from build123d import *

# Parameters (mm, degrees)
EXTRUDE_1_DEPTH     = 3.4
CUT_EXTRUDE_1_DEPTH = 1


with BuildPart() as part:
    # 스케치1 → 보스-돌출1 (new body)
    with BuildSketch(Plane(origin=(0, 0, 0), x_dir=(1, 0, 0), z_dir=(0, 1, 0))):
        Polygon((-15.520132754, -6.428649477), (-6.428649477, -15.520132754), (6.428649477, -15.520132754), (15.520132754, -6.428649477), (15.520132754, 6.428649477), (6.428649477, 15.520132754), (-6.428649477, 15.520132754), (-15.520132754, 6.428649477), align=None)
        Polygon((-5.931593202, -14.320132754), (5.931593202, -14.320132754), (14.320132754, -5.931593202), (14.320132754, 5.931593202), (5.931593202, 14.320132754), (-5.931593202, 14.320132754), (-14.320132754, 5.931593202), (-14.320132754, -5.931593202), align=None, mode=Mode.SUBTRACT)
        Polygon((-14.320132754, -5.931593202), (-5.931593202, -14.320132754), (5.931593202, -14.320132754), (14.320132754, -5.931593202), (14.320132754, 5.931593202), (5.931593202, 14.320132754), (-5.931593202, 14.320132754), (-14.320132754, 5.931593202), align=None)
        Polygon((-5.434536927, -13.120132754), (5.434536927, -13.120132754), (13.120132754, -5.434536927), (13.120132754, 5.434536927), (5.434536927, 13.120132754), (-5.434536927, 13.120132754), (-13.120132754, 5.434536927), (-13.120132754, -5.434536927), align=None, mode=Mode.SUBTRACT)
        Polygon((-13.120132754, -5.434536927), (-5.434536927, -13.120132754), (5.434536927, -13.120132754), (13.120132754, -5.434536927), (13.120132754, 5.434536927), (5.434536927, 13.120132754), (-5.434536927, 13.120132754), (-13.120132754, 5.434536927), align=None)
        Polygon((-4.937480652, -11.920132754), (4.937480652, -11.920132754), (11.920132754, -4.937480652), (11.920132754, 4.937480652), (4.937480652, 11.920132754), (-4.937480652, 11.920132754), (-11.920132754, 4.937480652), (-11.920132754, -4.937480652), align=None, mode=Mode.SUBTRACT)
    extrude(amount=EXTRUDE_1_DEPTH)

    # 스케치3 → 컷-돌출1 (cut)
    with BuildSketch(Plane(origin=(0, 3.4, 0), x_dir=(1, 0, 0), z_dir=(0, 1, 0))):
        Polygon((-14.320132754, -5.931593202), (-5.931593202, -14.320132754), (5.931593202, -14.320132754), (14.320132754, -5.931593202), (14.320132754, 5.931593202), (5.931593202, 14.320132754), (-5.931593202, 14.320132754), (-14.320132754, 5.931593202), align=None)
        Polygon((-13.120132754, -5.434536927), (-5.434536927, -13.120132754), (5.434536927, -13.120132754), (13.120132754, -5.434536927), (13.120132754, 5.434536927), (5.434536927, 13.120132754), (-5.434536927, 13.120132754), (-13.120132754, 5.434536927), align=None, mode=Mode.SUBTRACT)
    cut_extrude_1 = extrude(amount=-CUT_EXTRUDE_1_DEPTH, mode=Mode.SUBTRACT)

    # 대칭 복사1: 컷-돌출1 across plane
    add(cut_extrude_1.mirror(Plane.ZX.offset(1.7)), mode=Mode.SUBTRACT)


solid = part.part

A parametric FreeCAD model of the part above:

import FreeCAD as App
import Part
import Sketcher


def add_polygon(sketch, points):
    """Adds a closed chain of lines whose ends are joined by coincident constraints."""
    first, n = sketch.GeometryCount, len(points)
    for a, b in zip(points, points[1:] + points[:1]):
        sketch.addGeometry(Part.LineSegment(App.Vector(*a, 0), App.Vector(*b, 0)), False)
    for i in range(n):
        sketch.addConstraint(Sketcher.Constraint("Coincident", first + i, 2, first + (i + 1) % n, 1))

doc = App.newDocument("Part")
body = doc.addObject("PartDesign::Body", "Body")

sketch1 = body.newObject("Sketcher::SketchObject", "Sketch")
sketch1.AttachmentSupport = (doc.getObject("XZ_Plane"), [""])
sketch1.MapMode = "FlatFace"
add_polygon(sketch1, [(-16, 6), (-6, 16), (6, 16), (16, 6), (16, -6), (6, -16), (-6, -16), (-16, -6)])
add_polygon(sketch1, [(5, 12), (-5, 12), (-12, 5), (-12, -5), (-5, -12), (5, -12), (12, -5), (12, 5)])
sketch1.addConstraint(Sketcher.Constraint("Horizontal", 1))
sketch1.addConstraint(Sketcher.Constraint("Vertical", 3))
sketch1.addConstraint(Sketcher.Constraint("Horizontal", 5))
sketch1.addConstraint(Sketcher.Constraint("Vertical", 7))
sketch1.addConstraint(Sketcher.Constraint("Horizontal", 8))
sketch1.addConstraint(Sketcher.Constraint("Vertical", 10))
sketch1.addConstraint(Sketcher.Constraint("Horizontal", 12))
sketch1.addConstraint(Sketcher.Constraint("Vertical", 14))
sketch1.addConstraint(Sketcher.Constraint("Symmetric", 0, 2, 4, 2, -1, 1))
sketch1.addConstraint(Sketcher.Constraint("Symmetric", 2, 2, 6, 2, -1, 1))
sketch1.addConstraint(Sketcher.Constraint("Symmetric", 8, 2, 12, 2, -1, 1))
sketch1.addConstraint(Sketcher.Constraint("Symmetric", 9, 2, 13, 2, -1, 1))
sketch1.addConstraint(Sketcher.Constraint("Perpendicular", 0, 2))
sketch1.addConstraint(Sketcher.Constraint("Perpendicular", 2, 4))
sketch1.addConstraint(Sketcher.Constraint("Perpendicular", 4, 6))
sketch1.addConstraint(Sketcher.Constraint("Perpendicular", 6, 9))
sketch1.addConstraint(Sketcher.Constraint("Perpendicular", 9, 11))
sketch1.addConstraint(Sketcher.Constraint("Perpendicular", 13, 15))
sketch1.addConstraint(Sketcher.Constraint("Horizontal", 3, 2, 6, 2))
sketch1.addConstraint(Sketcher.Constraint("Horizontal", 10, 2, 13, 2))
sketch1.addConstraint(Sketcher.Constraint("Horizontal", 9, 2, 14, 2))
sketch1.addConstraint(Sketcher.Constraint("Vertical", 1, 2, 4, 2))
sketch1.addConstraint(Sketcher.Constraint("Equal", 5, 3))
sketch1.addConstraint(Sketcher.Constraint("Equal", 12, 10))
sketch1.addConstraint(Sketcher.Constraint("DistanceY", 8, 2, 0, 2, 3.6))
sketch1.addConstraint(Sketcher.Constraint("DistanceX", 1, 1, 1, 2, 12.857299))
sketch1.addConstraint(Sketcher.Constraint("Distance", 0, 12.857299))
sketch1.addConstraint(Sketcher.Constraint("DistanceX", 8, 2, 8, 1, 9.874961))
pad1 = body.newObject("PartDesign::Pad", "Pad")
pad1.Profile = sketch1
pad1.Length = 3.4
pad1.Reversed = True

sketch2 = body.newObject("Sketcher::SketchObject", "Sketch001")
sketch2.AttachmentSupport = (doc.getObject("XZ_Plane"), [""])
sketch2.MapMode = "FlatFace"
sketch2.AttachmentOffset = App.Placement(App.Vector(0, 0, -3.4), App.Rotation())
add_polygon(sketch2, [(-14, 6), (-6, 14), (6, 14), (14, 6), (14, -6), (6, -14), (-6, -14), (-14, -6)])
add_polygon(sketch2, [(-5, 13), (-13, 5), (-13, -5), (-5, -13), (5, -13), (13, -5), (13, 5), (5, 13)])
sketch2.addConstraint(Sketcher.Constraint("Horizontal", 1))
sketch2.addConstraint(Sketcher.Constraint("Vertical", 3))
sketch2.addConstraint(Sketcher.Constraint("Horizontal", 5))
sketch2.addConstraint(Sketcher.Constraint("Vertical", 7))
sketch2.addConstraint(Sketcher.Constraint("Vertical", 9))
sketch2.addConstraint(Sketcher.Constraint("Horizontal", 11))
sketch2.addConstraint(Sketcher.Constraint("Vertical", 13))
sketch2.addConstraint(Sketcher.Constraint("Horizontal", 15))
sketch2.addConstraint(Sketcher.Constraint("Symmetric", 0, 2, 4, 2, -1, 1))
sketch2.addConstraint(Sketcher.Constraint("Symmetric", 2, 2, 6, 2, -1, 1))
sketch2.addConstraint(Sketcher.Constraint("Symmetric", 8, 2, 12, 2, -1, 1))
sketch2.addConstraint(Sketcher.Constraint("Symmetric", 10, 2, 14, 2, -1, 1))
sketch2.addConstraint(Sketcher.Constraint("Perpendicular", 0, 2))
sketch2.addConstraint(Sketcher.Constraint("Perpendicular", 2, 4))
sketch2.addConstraint(Sketcher.Constraint("Perpendicular", 4, 6))
sketch2.addConstraint(Sketcher.Constraint("Perpendicular", 6, 8))
sketch2.addConstraint(Sketcher.Constraint("Perpendicular", 8, 10))
sketch2.addConstraint(Sketcher.Constraint("Perpendicular", 10, 12))
sketch2.addConstraint(Sketcher.Constraint("Perpendicular", 12, 14))
sketch2.addConstraint(Sketcher.Constraint("Horizontal", 3, 2, 6, 2))
sketch2.addConstraint(Sketcher.Constraint("Horizontal", 9, 2, 12, 2))
sketch2.addConstraint(Sketcher.Constraint("Vertical", 1, 2, 4, 2))
sketch2.addConstraint(Sketcher.Constraint("Equal", 5, 3))
sketch2.addConstraint(Sketcher.Constraint("Equal", 15, 9))
sketch2.addConstraint(Sketcher.Constraint("DistanceX", 7, 2, 8, 2, 1.2))
sketch2.addConstraint(Sketcher.Constraint("DistanceX", 1, 1, 1, 2, 11.863186))
sketch2.addConstraint(Sketcher.Constraint("DistanceX", 11, 1, 11, 2, 10.869074))
sketch2.addConstraint(Sketcher.Constraint("DistanceX", 1, 2, 2, 2, 8.38854))
pocket1 = body.newObject("PartDesign::Pocket", "Pocket")
pocket1.Profile = sketch2
pocket1.Length = 1
pocket1.Reversed = True
doc.recompute()

datumplane = body.newObject("PartDesign::Plane", "DatumPlane")
datumplane.AttachmentSupport = (doc.getObject("XZ_Plane"), [""])
datumplane.MapMode = "FlatFace"
datumplane.AttachmentOffset = App.Placement(App.Vector(0, 0, -1.7), App.Rotation())
mirrored = body.newObject("PartDesign::Mirrored", "Mirrored")
mirrored.Originals = [pocket1]
mirrored.MirrorPlane = (datumplane, [""])
body.Tip = mirrored

doc.recompute()
